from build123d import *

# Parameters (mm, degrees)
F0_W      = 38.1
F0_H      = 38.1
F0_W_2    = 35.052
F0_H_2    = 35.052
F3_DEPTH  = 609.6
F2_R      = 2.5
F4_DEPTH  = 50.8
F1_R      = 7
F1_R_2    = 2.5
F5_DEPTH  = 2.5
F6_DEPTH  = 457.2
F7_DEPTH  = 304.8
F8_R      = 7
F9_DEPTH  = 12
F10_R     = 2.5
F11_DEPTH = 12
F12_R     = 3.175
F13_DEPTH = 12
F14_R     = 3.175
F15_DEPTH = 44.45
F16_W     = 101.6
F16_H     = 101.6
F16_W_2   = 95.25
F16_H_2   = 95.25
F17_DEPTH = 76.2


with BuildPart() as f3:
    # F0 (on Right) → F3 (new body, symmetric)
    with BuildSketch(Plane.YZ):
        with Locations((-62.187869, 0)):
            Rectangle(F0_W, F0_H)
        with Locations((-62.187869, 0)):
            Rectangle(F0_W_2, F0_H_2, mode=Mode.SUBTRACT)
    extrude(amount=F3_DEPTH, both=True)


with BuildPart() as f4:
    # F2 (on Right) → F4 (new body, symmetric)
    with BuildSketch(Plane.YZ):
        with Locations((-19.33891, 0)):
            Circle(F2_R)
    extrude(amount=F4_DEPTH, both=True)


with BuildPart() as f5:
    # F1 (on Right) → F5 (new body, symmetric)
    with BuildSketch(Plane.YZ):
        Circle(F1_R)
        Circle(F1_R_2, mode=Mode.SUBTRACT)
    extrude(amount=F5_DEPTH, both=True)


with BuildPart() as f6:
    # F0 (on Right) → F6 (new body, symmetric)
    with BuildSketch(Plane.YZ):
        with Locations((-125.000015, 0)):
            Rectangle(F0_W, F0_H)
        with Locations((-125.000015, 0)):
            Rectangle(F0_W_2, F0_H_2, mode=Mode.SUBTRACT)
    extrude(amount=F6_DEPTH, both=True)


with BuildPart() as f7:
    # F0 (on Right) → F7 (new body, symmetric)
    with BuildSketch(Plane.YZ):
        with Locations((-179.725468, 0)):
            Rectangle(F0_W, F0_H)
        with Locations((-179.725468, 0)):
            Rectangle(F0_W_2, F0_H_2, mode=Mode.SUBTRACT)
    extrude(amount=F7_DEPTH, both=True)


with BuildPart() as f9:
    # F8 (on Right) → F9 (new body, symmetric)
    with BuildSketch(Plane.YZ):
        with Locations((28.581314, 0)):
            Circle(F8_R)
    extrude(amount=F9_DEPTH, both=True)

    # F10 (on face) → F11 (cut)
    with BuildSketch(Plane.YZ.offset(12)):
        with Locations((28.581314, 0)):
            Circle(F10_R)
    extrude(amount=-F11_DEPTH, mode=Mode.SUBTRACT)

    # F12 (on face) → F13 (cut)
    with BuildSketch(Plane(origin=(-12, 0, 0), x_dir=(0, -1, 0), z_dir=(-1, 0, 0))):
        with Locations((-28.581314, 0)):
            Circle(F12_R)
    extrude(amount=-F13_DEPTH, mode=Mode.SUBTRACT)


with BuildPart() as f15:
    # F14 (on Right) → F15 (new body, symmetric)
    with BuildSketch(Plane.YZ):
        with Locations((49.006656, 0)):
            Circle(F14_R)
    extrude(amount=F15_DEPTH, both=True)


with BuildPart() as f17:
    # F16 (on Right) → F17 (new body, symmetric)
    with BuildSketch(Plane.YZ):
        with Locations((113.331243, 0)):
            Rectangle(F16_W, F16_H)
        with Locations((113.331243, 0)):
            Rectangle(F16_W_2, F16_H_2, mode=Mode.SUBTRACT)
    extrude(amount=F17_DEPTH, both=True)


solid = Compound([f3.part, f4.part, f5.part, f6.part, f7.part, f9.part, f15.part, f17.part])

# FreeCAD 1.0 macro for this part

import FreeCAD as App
import Part
import Sketcher
Q = App.Units.Quantity


def add_polygon(sketch, points):
    """Adds a closed chain of lines whose ends are joined by coincident constraints."""
    first, n = sketch.GeometryCount, len(points)
    for a, b in zip(points, points[1:] + points[:1]):
        sketch.addGeometry(Part.LineSegment(App.Vector(*a, 0), App.Vector(*b, 0)), False)
    for i in range(n):
        sketch.addConstraint(Sketcher.Constraint("Coincident", first + i, 2, first + (i + 1) % n, 1))

doc = App.newDocument("Part")
body = doc.addObject("PartDesign::Body", "Body")

# Sketch on YZ plane
sketch1 = doc.addObject("Sketcher::SketchObject", "Sketch")
body.addObject(sketch1)
sketch1.AttachmentSupport = (doc.YZ_Plane, [""])
sketch1.MapMode = "FlatFace"
add_polygon(sketch1, [(-81.237869, 19.05), (-81.237869, -19.05), (-43.137869, -19.05), (-43.137869, 19.05)])  # lines 0-3
add_polygon(sketch1, [(-44.661869, -17.526), (-79.713869, -17.526), (-79.713869, 17.526), (-44.661869, 17.526)])  # lines 4-7
sketch1.addConstraint(Sketcher.Constraint("Vertical", 0))
sketch1.addConstraint(Sketcher.Constraint("Horizontal", 1))
sketch1.addConstraint(Sketcher.Constraint("Vertical", 2))
sketch1.addConstraint(Sketcher.Constraint("Horizontal", 3))
sketch1.addConstraint(Sketcher.Constraint("Horizontal", 4))
sketch1.addConstraint(Sketcher.Constraint("Vertical", 5))
sketch1.addConstraint(Sketcher.Constraint("Horizontal", 6))
sketch1.addConstraint(Sketcher.Constraint("Vertical", 7))
sketch1.addConstraint(Sketcher.Constraint("Equal", 3, 0))
sketch1.addConstraint(Sketcher.Constraint("Equal", 6, 5))
sketch1.addConstraint(Sketcher.Constraint("DistanceX", 1, 1, 1, 2, Q("1.5 in")))
sketch1.addConstraint(Sketcher.Constraint("DistanceX", 4, 2, 4, 1, Q("1.38 in")))
sketch1.addConstraint(Sketcher.Constraint("DistanceY", 0, 2, -1, 1, Q("0.75 in")))
sketch1.addConstraint(Sketcher.Constraint("DistanceY", 4, 2, -1, 1, Q("0.69 in")))
sketch1.addConstraint(Sketcher.Constraint("DistanceX", 0, 2, 4, 2, Q("0.06 in")))
sketch1.addConstraint(Sketcher.Constraint("DistanceX", 0, 2, -1, 1, 81.237869))
pad1 = doc.addObject("PartDesign::Pad", "Pad")
body.addObject(pad1)
pad1.Profile = sketch1
pad1.Length = Q("48 in")
pad1.Midplane = True
body2 = doc.addObject("PartDesign::Body", "Body001")

# Sketch on YZ plane
sketch2 = doc.addObject("Sketcher::SketchObject", "Sketch001")
body2.addObject(sketch2)
sketch2.AttachmentSupport = (doc.getObject("YZ_Plane001"), [""])
sketch2.MapMode = "FlatFace"
sketch2.addGeometry(Part.Circle(App.Vector(-19.33891, 0, 0), App.Vector(0, 0, 1), 2.5), False)
sketch2.addConstraint(Sketcher.Constraint("PointOnObject", 0, 3, -1))
sketch2.addConstraint(Sketcher.Constraint("Diameter", 0, 5.0))
sketch2.addConstraint(Sketcher.Constraint("DistanceX", 0, 3, -1, 1, 19.33891))
pad2 = doc.addObject("PartDesign::Pad", "Pad001")
body2.addObject(pad2)
pad2.Profile = sketch2
pad2.Length = Q("4 in")
pad2.Midplane = True
body3 = doc.addObject("PartDesign::Body", "Body002")

# Sketch on YZ plane
sketch3 = doc.addObject("Sketcher::SketchObject", "Sketch002")
body3.addObject(sketch3)
sketch3.AttachmentSupport = (doc.getObject("YZ_Plane002"), [""])
sketch3.MapMode = "FlatFace"
sketch3.addGeometry(Part.Circle(App.Vector(0, 0, 0), App.Vector(0, 0, 1), 7), False)
sketch3.addGeometry(Part.Circle(App.Vector(0, 0, 0), App.Vector(0, 0, 1), 2.5), False)
sketch3.addConstraint(Sketcher.Constraint("Coincident", 0, 3, -1, 1))
sketch3.addConstraint(Sketcher.Constraint("Coincident", 1, 3, -1, 1))
sketch3.addConstraint(Sketcher.Constraint("Diameter", 0, 14.0))
sketch3.addConstraint(Sketcher.Constraint("Diameter", 1, 5.0))
pad3 = doc.addObject("PartDesign::Pad", "Pad002")
body3.addObject(pad3)
pad3.Profile = sketch3
pad3.Length = 5
pad3.Midplane = True
body4 = doc.addObject("PartDesign::Body", "Body003")

# Sketch on YZ plane
sketch4 = doc.addObject("Sketcher::SketchObject", "Sketch003")
body4.addObject(sketch4)
sketch4.AttachmentSupport = (doc.getObject("YZ_Plane003"), [""])
sketch4.MapMode = "FlatFace"
add_polygon(sketch4, [(-144.050015, 19.05), (-144.050015, -19.05), (-105.950015, -19.05), (-105.950015, 19.05)])  # lines 0-3
add_polygon(sketch4, [(-107.474015, -17.526), (-142.526015, -17.526), (-142.526015, 17.526), (-107.474015, 17.526)])  # lines 4-7
sketch4.addConstraint(Sketcher.Constraint("Vertical", 0))
sketch4.addConstraint(Sketcher.Constraint("Horizontal", 1))
sketch4.addConstraint(Sketcher.Constraint("Vertical", 2))
sketch4.addConstraint(Sketcher.Constraint("Horizontal", 3))
sketch4.addConstraint(Sketcher.Constraint("Horizontal", 4))
sketch4.addConstraint(Sketcher.Constraint("Vertical", 5))
sketch4.addConstraint(Sketcher.Constraint("Horizontal", 6))
sketch4.addConstraint(Sketcher.Constraint("Vertical", 7))
sketch4.addConstraint(Sketcher.Constraint("Equal", 3, 0))
sketch4.addConstraint(Sketcher.Constraint("Equal", 6, 5))
sketch4.addConstraint(Sketcher.Constraint("DistanceX", 1, 1, 1, 2, Q("1.5 in")))
sketch4.addConstraint(Sketcher.Constraint("DistanceX", 4, 2, 4, 1, Q("1.38 in")))
sketch4.addConstraint(Sketcher.Constraint("DistanceY", 0, 2, -1, 1, Q("0.75 in")))
sketch4.addConstraint(Sketcher.Constraint("DistanceY", 4, 2, -1, 1, Q("0.69 in")))
sketch4.addConstraint(Sketcher.Constraint("DistanceX", 0, 2, 4, 2, Q("0.06 in")))
sketch4.addConstraint(Sketcher.Constraint("DistanceX", 0, 2, -1, 1, 144.050015))
pad4 = doc.addObject("PartDesign::Pad", "Pad003")
body4.addObject(pad4)
pad4.Profile = sketch4
pad4.Length = Q("36 in")
pad4.Midplane = True
body5 = doc.addObject("PartDesign::Body", "Body004")

# Sketch on YZ plane
sketch5 = doc.addObject("Sketcher::SketchObject", "Sketch004")
body5.addObject(sketch5)
sketch5.AttachmentSupport = (doc.getObject("YZ_Plane004"), [""])
sketch5.MapMode = "FlatFace"
add_polygon(sketch5, [(-198.775468, 19.05), (-198.775468, -19.05), (-160.675468, -19.05), (-160.675468, 19.05)])  # lines 0-3
add_polygon(sketch5, [(-162.199468, -17.526), (-197.251468, -17.526), (-197.251468, 17.526), (-162.199468, 17.526)])  # lines 4-7
sketch5.addConstraint(Sketcher.Constraint("Vertical", 0))
sketch5.addConstraint(Sketcher.Constraint("Horizontal", 1))
sketch5.addConstraint(Sketcher.Constraint("Vertical", 2))
sketch5.addConstraint(Sketcher.Constraint("Horizontal", 3))
sketch5.addConstraint(Sketcher.Constraint("Horizontal", 4))
sketch5.addConstraint(Sketcher.Constraint("Vertical", 5))
sketch5.addConstraint(Sketcher.Constraint("Horizontal", 6))
sketch5.addConstraint(Sketcher.Constraint("Vertical", 7))
sketch5.addConstraint(Sketcher.Constraint("Equal", 3, 0))
sketch5.addConstraint(Sketcher.Constraint("Equal", 6, 5))
sketch5.addConstraint(Sketcher.Constraint("DistanceX", 1, 1, 1, 2, Q("1.5 in")))
sketch5.addConstraint(Sketcher.Constraint("DistanceX", 4, 2, 4, 1, Q("1.38 in")))
sketch5.addConstraint(Sketcher.Constraint("DistanceY", 0, 2, -1, 1, Q("0.75 in")))
sketch5.addConstraint(Sketcher.Constraint("DistanceY", 4, 2, -1, 1, Q("0.69 in")))
sketch5.addConstraint(Sketcher.Constraint("DistanceX", 0, 2, 4, 2, Q("0.06 in")))
sketch5.addConstraint(Sketcher.Constraint("DistanceX", 1, 2, -1, 1, 160.675468))
pad5 = doc.addObject("PartDesign::Pad", "Pad004")
body5.addObject(pad5)
pad5.Profile = sketch5
pad5.Length = Q("24 in")
pad5.Midplane = True
body6 = doc.addObject("PartDesign::Body", "Body005")

# Sketch on YZ plane
sketch6 = doc.addObject("Sketcher::SketchObject", "Sketch005")
body6.addObject(sketch6)
sketch6.AttachmentSupport = (doc.getObject("YZ_Plane005"), [""])
sketch6.MapMode = "FlatFace"
sketch6.addGeometry(Part.Circle(App.Vector(28.581314, 0, 0), App.Vector(0, 0, 1), 7), False)
sketch6.addConstraint(Sketcher.Constraint("PointOnObject", 0, 3, -1))
sketch6.addConstraint(Sketcher.Constraint("Diameter", 0, 14.0))
sketch6.addConstraint(Sketcher.Constraint("DistanceX", -1, 1, 0, 3, 28.581314))
pad6 = doc.addObject("PartDesign::Pad", "Pad005")
body6.addObject(pad6)
pad6.Profile = sketch6
pad6.Length = 24
pad6.Midplane = True

# Sketch on YZ plane
sketch7 = doc.addObject("Sketcher::SketchObject", "Sketch006")
body6.addObject(sketch7)
sketch7.AttachmentSupport = (doc.getObject("YZ_Plane005"), [""])
sketch7.MapMode = "FlatFace"
sketch7.AttachmentOffset = App.Placement(App.Vector(0, 0, 12), App.Rotation())
sketch7.addGeometry(Part.Circle(App.Vector(28.581314, 0, 0), App.Vector(0, 0, 1), 2.5), False)
sketch7.addConstraint(Sketcher.Constraint("PointOnObject", 0, 3, -1))
sketch7.addConstraint(Sketcher.Constraint("Diameter", 0, 5.0))
sketch7.addConstraint(Sketcher.Constraint("DistanceX", -1, 1, 0, 3, 28.581314))
pocket1 = doc.addObject("PartDesign::Pocket", "Pocket")
body6.addObject(pocket1)
pocket1.Profile = sketch7
pocket1.Length = 12

# Sketch on YZ plane
sketch8 = doc.addObject("Sketcher::SketchObject", "Sketch007")
body6.addObject(sketch8)
sketch8.AttachmentSupport = (doc.getObject("YZ_Plane005"), [""])
sketch8.MapMode = "FlatFace"
sketch8.AttachmentOffset = App.Placement(App.Vector(0, 0, -12), App.Rotation())
sketch8.addGeometry(Part.Circle(App.Vector(28.581314, 0, 0), App.Vector(0, 0, 1), 3.175), False)
sketch8.addConstraint(Sketcher.Constraint("PointOnObject", 0, 3, -1))
sketch8.addConstraint(Sketcher.Constraint("Diameter", 0, Q("0.25 in")))
sketch8.addConstraint(Sketcher.Constraint("DistanceX", -1, 1, 0, 3, 28.581314))
pocket2 = doc.addObject("PartDesign::Pocket", "Pocket001")
body6.addObject(pocket2)
pocket2.Profile = sketch8
pocket2.Length = 12
pocket2.Reversed = True
body7 = doc.addObject("PartDesign::Body", "Body006")

# Sketch on YZ plane
sketch9 = doc.addObject("Sketcher::SketchObject", "Sketch008")
body7.addObject(sketch9)
sketch9.AttachmentSupport = (doc.getObject("YZ_Plane006"), [""])
sketch9.MapMode = "FlatFace"
sketch9.addGeometry(Part.Circle(App.Vector(49.006656, 0, 0), App.Vector(0, 0, 1), 3.175), False)
sketch9.addConstraint(Sketcher.Constraint("PointOnObject", 0, 3, -1))
sketch9.addConstraint(Sketcher.Constraint("Diameter", 0, Q("0.25 in")))
sketch9.addConstraint(Sketcher.Constraint("DistanceX", -1, 1, 0, 3, 49.006656))
pad7 = doc.addObject("PartDesign::Pad", "Pad006")
body7.addObject(pad7)
pad7.Profile = sketch9
pad7.Length = Q("3.5 in")
pad7.Midplane = True
body8 = doc.addObject("PartDesign::Body", "Body007")

# Sketch on YZ plane
sketch10 = doc.addObject("Sketcher::SketchObject", "Sketch009")
body8.addObject(sketch10)
sketch10.AttachmentSupport = (doc.getObject("YZ_Plane007"), [""])
sketch10.MapMode = "FlatFace"
add_polygon(sketch10, [(62.531243, 50.8), (62.531243, -50.8), (164.131243, -50.8), (164.131243, 50.8)])  # lines 0-3
add_polygon(sketch10, [(160.956243, -47.625), (65.706243, -47.625), (65.706243, 47.625), (160.956243, 47.625)])  # lines 4-7
sketch10.addConstraint(Sketcher.Constraint("Vertical", 0))
sketch10.addConstraint(Sketcher.Constraint("Horizontal", 1))
sketch10.addConstraint(Sketcher.Constraint("Vertical", 2))
sketch10.addConstraint(Sketcher.Constraint("Horizontal", 3))
sketch10.addConstraint(Sketcher.Constraint("Horizontal", 4))
sketch10.addConstraint(Sketcher.Constraint("Vertical", 5))
sketch10.addConstraint(Sketcher.Constraint("Horizontal", 6))
sketch10.addConstraint(Sketcher.Constraint("Vertical", 7))
sketch10.addConstraint(Sketcher.Constraint("Equal", 3, 0))
sketch10.addConstraint(Sketcher.Constraint("Equal", 6, 5))
sketch10.addConstraint(Sketcher.Constraint("DistanceX", 1, 1, 1, 2, Q("4 in")))
sketch10.addConstraint(Sketcher.Constraint("DistanceY", 0, 2, -1, 1, Q("2 in")))
sketch10.addConstraint(Sketcher.Constraint("DistanceX", 4, 2, 4, 1, Q("3.75 in")))
sketch10.addConstraint(Sketcher.Constraint("DistanceY", 4, 2, -1, 1, Q("1.875 in")))
sketch10.addConstraint(Sketcher.Constraint("DistanceX", 0, 2, 4, 2, Q("0.125 in")))
sketch10.addConstraint(Sketcher.Constraint("DistanceX", -1, 1, 0, 2, 62.531243))
pad8 = doc.addObject("PartDesign::Pad", "Pad007")
body8.addObject(pad8)
pad8.Profile = sketch10
pad8.Length = Q("6 in")
pad8.Midplane = True

doc.recompute()
